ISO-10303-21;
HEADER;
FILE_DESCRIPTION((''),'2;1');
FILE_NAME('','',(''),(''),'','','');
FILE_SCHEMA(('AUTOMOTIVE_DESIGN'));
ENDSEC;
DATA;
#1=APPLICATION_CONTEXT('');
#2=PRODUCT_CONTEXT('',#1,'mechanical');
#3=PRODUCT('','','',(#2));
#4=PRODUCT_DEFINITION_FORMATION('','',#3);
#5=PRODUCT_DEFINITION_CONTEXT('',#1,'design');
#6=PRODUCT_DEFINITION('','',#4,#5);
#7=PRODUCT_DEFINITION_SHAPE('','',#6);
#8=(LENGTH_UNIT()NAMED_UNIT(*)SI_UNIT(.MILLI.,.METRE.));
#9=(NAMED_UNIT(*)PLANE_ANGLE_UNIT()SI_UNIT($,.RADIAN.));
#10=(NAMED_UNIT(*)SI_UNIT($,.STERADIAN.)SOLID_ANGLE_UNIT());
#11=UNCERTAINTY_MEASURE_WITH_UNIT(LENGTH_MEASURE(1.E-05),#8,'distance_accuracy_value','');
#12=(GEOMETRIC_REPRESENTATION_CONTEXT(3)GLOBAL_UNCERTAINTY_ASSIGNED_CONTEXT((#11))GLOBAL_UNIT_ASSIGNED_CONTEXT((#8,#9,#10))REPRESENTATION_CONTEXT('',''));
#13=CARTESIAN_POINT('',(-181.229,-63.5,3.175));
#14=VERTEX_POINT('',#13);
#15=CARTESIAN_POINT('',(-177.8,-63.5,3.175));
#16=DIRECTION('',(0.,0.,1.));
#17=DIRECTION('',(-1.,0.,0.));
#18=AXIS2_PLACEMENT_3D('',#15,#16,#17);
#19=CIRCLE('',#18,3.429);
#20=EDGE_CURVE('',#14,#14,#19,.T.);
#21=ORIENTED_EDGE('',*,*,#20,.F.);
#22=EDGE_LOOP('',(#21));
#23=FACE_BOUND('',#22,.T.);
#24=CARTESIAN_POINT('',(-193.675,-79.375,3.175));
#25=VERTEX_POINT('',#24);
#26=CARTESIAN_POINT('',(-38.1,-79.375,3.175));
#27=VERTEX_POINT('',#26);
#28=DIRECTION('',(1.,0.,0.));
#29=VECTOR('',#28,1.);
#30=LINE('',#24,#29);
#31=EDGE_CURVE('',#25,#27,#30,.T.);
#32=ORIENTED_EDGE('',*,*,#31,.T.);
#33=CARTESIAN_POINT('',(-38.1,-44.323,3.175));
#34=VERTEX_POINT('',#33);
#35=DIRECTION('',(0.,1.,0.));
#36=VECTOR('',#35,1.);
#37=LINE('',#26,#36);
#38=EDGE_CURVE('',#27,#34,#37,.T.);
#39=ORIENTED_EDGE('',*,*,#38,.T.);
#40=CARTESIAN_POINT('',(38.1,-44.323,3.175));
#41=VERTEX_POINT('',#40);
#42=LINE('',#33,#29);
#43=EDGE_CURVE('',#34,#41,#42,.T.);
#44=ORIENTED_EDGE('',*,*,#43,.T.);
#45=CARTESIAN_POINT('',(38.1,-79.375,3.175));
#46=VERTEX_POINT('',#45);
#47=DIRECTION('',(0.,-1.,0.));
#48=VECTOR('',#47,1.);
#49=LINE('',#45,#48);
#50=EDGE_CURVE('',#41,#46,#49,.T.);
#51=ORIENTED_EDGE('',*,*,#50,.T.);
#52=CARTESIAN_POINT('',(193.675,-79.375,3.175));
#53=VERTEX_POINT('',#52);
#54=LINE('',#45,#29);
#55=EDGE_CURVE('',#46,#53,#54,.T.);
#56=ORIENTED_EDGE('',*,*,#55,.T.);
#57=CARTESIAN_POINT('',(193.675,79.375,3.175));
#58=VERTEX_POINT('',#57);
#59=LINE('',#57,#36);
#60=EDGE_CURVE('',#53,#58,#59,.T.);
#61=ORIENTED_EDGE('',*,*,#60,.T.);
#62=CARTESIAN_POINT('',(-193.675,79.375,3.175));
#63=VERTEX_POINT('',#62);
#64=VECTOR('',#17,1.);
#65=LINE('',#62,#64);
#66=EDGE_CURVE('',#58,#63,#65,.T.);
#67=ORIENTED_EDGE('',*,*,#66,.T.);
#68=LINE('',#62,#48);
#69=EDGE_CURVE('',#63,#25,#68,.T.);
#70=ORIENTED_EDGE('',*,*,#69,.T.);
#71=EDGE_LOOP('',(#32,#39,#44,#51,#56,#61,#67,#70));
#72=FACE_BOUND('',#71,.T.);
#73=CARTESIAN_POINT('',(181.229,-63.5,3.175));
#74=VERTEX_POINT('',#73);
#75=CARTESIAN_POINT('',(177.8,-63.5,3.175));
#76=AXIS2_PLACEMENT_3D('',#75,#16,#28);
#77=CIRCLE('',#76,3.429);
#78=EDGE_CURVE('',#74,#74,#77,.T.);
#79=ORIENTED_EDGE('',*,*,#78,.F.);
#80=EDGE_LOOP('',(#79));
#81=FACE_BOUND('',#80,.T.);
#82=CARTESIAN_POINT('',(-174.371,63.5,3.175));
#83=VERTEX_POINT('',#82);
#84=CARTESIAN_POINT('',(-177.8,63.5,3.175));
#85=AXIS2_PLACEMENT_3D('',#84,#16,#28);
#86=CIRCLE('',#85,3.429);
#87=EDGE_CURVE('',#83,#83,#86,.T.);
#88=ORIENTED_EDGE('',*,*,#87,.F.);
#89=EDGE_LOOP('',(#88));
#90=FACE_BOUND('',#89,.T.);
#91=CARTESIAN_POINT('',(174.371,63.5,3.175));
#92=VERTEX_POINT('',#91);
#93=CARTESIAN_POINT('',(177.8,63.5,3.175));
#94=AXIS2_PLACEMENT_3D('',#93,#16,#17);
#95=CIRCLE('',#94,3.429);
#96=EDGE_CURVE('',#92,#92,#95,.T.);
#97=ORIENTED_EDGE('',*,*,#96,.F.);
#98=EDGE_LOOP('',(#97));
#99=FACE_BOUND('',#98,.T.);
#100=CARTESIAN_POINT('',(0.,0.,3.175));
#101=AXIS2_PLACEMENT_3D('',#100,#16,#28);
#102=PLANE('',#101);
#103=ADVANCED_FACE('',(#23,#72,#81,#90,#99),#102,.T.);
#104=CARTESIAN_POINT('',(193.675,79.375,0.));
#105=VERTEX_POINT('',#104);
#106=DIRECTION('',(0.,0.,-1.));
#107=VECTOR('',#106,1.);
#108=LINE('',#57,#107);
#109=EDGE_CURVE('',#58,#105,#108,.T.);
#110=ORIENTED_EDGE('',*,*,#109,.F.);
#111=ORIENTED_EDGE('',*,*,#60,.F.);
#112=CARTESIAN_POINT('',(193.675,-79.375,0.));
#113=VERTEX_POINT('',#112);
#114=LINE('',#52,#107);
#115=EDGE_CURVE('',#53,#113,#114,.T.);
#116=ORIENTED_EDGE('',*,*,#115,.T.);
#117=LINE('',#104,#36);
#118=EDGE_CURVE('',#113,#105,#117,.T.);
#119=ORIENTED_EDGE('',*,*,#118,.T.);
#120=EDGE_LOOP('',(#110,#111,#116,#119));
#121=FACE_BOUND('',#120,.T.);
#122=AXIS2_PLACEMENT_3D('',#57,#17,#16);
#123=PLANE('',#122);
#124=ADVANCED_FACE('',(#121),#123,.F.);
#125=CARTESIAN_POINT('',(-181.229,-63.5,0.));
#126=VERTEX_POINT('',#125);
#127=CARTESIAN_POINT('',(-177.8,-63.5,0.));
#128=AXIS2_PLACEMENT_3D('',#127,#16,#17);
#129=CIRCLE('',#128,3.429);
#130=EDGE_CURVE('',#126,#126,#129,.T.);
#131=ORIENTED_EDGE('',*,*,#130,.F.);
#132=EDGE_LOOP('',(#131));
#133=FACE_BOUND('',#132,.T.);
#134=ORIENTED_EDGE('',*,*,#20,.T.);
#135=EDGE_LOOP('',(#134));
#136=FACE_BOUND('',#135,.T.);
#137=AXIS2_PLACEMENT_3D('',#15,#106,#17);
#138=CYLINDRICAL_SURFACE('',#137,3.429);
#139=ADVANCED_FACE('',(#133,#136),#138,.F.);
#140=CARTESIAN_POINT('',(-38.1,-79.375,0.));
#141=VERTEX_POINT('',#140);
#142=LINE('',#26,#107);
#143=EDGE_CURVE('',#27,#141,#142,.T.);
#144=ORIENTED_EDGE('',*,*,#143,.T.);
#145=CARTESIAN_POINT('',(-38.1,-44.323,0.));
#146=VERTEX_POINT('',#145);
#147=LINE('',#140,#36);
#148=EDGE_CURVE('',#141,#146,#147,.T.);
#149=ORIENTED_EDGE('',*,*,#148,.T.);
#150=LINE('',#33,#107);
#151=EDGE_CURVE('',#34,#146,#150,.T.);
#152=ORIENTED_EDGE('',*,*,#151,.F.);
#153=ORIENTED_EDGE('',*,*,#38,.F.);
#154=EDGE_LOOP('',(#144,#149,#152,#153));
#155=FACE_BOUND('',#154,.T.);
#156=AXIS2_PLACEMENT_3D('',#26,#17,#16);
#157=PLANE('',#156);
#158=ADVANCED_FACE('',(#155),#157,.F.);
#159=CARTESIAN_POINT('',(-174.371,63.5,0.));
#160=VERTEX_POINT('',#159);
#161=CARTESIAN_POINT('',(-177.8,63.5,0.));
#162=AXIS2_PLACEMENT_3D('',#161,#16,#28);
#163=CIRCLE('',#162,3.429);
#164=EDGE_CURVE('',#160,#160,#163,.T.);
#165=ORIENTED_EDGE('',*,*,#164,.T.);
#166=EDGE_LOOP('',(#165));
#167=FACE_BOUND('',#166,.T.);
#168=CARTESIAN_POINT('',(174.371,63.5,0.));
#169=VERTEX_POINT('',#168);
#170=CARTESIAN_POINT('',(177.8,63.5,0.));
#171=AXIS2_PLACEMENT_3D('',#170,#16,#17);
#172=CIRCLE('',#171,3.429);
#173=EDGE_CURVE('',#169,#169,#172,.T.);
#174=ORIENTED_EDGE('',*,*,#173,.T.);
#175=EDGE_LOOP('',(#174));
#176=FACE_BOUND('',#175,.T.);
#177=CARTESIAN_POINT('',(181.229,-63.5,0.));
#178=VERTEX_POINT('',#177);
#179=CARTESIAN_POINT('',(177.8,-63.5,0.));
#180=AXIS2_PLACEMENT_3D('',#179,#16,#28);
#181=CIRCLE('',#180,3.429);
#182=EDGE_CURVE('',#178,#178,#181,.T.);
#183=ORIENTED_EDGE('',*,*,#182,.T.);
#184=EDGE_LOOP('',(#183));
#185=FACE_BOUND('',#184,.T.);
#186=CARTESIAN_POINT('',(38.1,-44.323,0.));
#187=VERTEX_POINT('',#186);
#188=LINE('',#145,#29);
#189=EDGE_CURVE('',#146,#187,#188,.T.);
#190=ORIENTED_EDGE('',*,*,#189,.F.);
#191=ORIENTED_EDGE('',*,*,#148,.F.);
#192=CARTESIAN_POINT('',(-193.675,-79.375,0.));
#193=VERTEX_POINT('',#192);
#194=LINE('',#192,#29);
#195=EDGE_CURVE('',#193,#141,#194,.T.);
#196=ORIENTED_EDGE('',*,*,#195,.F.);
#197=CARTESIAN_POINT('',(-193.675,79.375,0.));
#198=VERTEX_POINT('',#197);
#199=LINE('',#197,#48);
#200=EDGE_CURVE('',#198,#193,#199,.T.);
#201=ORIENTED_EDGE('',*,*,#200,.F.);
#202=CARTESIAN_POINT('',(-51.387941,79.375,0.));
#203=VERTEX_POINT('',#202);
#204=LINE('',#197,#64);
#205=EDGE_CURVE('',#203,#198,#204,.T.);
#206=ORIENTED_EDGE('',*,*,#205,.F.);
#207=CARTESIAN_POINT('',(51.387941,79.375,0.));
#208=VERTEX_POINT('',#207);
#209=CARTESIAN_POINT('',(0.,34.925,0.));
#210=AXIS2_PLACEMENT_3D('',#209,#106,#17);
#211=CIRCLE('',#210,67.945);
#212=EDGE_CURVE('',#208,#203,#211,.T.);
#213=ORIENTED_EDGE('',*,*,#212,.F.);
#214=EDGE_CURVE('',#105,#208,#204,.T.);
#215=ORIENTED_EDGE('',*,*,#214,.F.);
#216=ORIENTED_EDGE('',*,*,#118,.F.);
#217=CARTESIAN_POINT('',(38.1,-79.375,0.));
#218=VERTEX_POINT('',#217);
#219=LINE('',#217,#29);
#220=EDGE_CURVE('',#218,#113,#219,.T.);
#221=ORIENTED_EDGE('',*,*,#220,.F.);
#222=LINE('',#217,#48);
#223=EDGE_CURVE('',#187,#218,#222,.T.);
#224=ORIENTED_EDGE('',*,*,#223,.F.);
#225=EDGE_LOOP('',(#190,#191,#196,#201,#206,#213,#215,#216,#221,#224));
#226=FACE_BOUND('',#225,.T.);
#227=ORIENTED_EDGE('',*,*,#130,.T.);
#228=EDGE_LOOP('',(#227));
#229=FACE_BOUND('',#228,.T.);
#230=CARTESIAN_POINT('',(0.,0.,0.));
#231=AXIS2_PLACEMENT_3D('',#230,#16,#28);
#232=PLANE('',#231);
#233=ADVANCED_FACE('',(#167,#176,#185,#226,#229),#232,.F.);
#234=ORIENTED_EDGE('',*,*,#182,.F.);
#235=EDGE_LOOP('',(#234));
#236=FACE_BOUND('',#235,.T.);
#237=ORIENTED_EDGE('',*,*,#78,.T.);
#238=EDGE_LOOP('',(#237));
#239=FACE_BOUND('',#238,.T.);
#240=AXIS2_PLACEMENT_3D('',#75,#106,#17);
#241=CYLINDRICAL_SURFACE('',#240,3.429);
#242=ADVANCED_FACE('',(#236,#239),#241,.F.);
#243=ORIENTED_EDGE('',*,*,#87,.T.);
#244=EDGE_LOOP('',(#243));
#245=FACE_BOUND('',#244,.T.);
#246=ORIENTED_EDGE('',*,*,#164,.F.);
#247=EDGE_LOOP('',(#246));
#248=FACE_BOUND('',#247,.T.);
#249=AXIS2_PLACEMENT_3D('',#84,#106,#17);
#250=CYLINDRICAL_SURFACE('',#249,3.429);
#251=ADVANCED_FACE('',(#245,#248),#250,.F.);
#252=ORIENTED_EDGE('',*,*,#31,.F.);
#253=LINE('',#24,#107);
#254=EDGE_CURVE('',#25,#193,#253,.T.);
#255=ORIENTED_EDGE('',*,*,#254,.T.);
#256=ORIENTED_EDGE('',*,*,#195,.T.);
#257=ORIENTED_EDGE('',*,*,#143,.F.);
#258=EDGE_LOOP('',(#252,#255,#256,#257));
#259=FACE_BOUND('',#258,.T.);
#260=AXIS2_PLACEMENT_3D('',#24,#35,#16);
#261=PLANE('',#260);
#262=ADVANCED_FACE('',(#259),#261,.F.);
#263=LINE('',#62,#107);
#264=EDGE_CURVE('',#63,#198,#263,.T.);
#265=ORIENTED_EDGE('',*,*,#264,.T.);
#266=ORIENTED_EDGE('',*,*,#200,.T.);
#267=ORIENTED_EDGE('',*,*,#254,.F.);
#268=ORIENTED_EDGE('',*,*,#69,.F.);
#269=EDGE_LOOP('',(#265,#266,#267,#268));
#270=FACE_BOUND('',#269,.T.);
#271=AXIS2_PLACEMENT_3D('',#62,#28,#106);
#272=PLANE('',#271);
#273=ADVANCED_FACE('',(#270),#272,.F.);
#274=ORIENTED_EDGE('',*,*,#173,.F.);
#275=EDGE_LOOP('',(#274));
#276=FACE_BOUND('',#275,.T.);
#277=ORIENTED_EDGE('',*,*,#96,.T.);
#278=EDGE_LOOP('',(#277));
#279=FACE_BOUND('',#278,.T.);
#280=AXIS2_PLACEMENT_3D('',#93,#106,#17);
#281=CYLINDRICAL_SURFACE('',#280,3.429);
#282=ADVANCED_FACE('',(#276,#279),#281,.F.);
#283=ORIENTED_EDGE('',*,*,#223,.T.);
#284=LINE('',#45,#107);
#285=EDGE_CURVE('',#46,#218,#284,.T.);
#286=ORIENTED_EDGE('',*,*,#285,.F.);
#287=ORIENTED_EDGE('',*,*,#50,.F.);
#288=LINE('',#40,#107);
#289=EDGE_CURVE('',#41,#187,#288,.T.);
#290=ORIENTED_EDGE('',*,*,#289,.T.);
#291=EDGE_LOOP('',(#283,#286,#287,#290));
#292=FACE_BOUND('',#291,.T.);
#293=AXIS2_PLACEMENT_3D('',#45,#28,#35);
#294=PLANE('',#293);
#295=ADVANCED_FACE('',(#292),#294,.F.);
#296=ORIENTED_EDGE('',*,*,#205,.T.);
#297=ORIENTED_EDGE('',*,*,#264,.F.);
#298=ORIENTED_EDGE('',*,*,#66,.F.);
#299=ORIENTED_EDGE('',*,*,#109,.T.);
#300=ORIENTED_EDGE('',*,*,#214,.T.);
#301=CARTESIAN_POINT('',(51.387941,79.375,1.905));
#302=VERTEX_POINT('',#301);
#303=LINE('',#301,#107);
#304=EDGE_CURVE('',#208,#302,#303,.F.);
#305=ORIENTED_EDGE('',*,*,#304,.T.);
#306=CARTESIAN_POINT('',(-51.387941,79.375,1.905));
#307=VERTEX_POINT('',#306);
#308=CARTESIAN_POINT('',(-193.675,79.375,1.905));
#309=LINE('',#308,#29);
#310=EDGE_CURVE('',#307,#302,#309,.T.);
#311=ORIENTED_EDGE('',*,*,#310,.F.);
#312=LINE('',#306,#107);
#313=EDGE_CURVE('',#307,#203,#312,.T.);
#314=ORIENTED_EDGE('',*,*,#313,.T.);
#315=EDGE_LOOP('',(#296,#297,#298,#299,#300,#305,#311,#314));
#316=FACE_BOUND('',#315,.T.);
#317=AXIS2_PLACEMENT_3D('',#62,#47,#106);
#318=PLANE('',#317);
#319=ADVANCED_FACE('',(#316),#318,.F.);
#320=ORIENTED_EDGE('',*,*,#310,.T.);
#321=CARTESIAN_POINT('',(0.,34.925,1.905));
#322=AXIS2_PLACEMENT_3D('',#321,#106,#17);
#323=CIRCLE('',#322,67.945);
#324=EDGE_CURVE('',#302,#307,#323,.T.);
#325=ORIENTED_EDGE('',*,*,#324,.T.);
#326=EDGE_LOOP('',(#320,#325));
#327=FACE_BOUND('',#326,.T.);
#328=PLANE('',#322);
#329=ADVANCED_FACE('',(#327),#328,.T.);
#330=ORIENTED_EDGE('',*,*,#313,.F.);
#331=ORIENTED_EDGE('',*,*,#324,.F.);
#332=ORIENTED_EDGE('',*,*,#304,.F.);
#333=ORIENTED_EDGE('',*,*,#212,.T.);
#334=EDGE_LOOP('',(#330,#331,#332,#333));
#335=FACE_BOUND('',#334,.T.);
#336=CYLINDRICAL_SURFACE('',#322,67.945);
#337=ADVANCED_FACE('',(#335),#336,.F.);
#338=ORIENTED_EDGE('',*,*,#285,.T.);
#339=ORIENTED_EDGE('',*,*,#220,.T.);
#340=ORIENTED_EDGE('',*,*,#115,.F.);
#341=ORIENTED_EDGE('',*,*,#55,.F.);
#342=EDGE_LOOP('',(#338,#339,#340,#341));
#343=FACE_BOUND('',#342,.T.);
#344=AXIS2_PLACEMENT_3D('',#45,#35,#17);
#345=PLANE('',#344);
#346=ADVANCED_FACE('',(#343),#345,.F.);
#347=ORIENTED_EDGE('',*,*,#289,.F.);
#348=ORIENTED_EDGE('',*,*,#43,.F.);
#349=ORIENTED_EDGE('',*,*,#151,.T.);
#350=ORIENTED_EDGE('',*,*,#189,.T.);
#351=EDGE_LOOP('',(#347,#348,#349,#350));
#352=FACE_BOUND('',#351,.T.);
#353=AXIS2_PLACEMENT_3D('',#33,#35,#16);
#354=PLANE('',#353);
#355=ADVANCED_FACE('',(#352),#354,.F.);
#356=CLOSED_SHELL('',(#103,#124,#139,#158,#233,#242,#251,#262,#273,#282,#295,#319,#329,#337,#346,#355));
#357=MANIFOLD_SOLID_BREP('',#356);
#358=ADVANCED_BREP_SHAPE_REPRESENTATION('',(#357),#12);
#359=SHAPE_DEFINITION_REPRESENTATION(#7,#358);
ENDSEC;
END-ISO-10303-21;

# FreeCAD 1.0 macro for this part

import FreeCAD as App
import Part
import Sketcher
Q = App.Units.Quantity

doc = App.newDocument("Part")
params = doc.addObject("Spreadsheet::Sheet", "Params")
for row, (alias, value) in enumerate([
    ("sketch1_diameter", "0.27 in"),
    ("sketch1_width", "3 in"),
    ("sketch1_width2", "15.25 in"),
    ("sketch1_height", "6.25 in"),
    ("sketch1_height2", "1.38 in"),
    ("pad1_length", "0.125 in"),
    ("sketch2_diameter", "5.35 in"),
    ("pocket1_length", "0.075 in"),
], start=1):
    params.set(f"A{row}", alias)
    params.set(f"B{row}", "=" + value)
    params.setAlias(f"B{row}", alias)

body = doc.addObject("PartDesign::Body", "Body")

sketch1 = body.newObject("Sketcher::SketchObject", "Sketch")
sketch1.AttachmentSupport = (doc.getObject("XY_Plane"), [""])
sketch1.MapMode = "FlatFace"
sketch1.addGeometry([
    Part.LineSegment(App.Vector(38.1, -79.4, 0), App.Vector(193.7, -79.4, 0)),
    Part.LineSegment(App.Vector(193.7, -79.4, 0), App.Vector(193.7, 79.4, 0)),
    Part.LineSegment(App.Vector(193.7, 79.4, 0), App.Vector(-193.7, 79.4, 0)),
    Part.LineSegment(App.Vector(-193.7, 79.4, 0), App.Vector(-193.7, -79.4, 0)),
    Part.LineSegment(App.Vector(-193.7, -79.4, 0), App.Vector(-38.1, -79.4, 0)),
    Part.LineSegment(App.Vector(-38.1, -79.4, 0), App.Vector(-38.1, -44.3, 0)),
    Part.LineSegment(App.Vector(-38.1, -44.3, 0), App.Vector(38.1, -44.3, 0)),
    Part.LineSegment(App.Vector(38.1, -44.3, 0), App.Vector(38.1, -79.4, 0)),
    Part.Circle(App.Vector(-177.8, -63.5, 0), App.Vector(0, 0, 1), 3.4),
    Part.Circle(App.Vector(177.8, -63.5, 0), App.Vector(0, 0, 1), 3.4),
    Part.Circle(App.Vector(-177.8, 63.5, 0), App.Vector(0, 0, 1), 3.4),
    Part.Circle(App.Vector(177.8, 63.5, 0), App.Vector(0, 0, 1), 3.4),
], False)
sketch1.addConstraint([
    Sketcher.Constraint("Coincident", 0, 2, 1, 1),
    Sketcher.Constraint("Coincident", 1, 2, 2, 1),
    Sketcher.Constraint("Coincident", 2, 2, 3, 1),
    Sketcher.Constraint("Coincident", 3, 2, 4, 1),
    Sketcher.Constraint("Coincident", 4, 2, 5, 1),
    Sketcher.Constraint("Coincident", 5, 2, 6, 1),
    Sketcher.Constraint("Coincident", 6, 2, 7, 1),
    Sketcher.Constraint("Coincident", 7, 2, 0, 1),
    Sketcher.Constraint("Horizontal", 0),
    Sketcher.Constraint("Vertical", 1),
    Sketcher.Constraint("Horizontal", 2),
    Sketcher.Constraint("Vertical", 3),
    Sketcher.Constraint("Horizontal", 4),
    Sketcher.Constraint("Vertical", 5),
    Sketcher.Constraint("Horizontal", 6),
    Sketcher.Constraint("Vertical", 7),
    Sketcher.Constraint("Equal", 8, 9),
    Sketcher.Constraint("Equal", 9, 10),
    Sketcher.Constraint("Equal", 10, 11),
    Sketcher.Constraint("Symmetric", 9, 3, 10, 3, -1, 1),
    Sketcher.Constraint("Symmetric", 8, 3, 11, 3, -1, 1),
    Sketcher.Constraint("Symmetric", 0, 2, 2, 2, -1, 1),
    Sketcher.Constraint("Symmetric", 8, 3, 9, 3, -2),
    Sketcher.Constraint("Symmetric", 4, 2, 7, 2, -2),
    Sketcher.Constraint("Diameter", 8, Q("0.27 in")),
    Sketcher.Constraint("DistanceX", 6, 1, 6, 2, Q("3 in")),
    Sketcher.Constraint("DistanceX", 8, 3, -1, 1, Q("7 in")),
    Sketcher.Constraint("DistanceY", 8, 3, 10, 3, Q("5 in")),
    Sketcher.Constraint("DistanceX", 2, 2, 2, 1, Q("15.25 in")),
    Sketcher.Constraint("DistanceY", 1, 1, 1, 2, Q("6.25 in")),
    Sketcher.Constraint("DistanceY", 5, 1, 5, 2, Q("1.38 in")),
])
sketch1.setExpression("Constraints[24]", "Params.sketch1_diameter")
sketch1.setExpression("Constraints[25]", "Params.sketch1_width")
sketch1.setExpression("Constraints[28]", "Params.sketch1_width2")
sketch1.setExpression("Constraints[29]", "Params.sketch1_height")
sketch1.setExpression("Constraints[30]", "Params.sketch1_height2")
pad1 = body.newObject("PartDesign::Pad", "Pad")
pad1.Profile = sketch1
pad1.setExpression("Length", "Params.pad1_length")

sketch2 = body.newObject("Sketcher::SketchObject", "Sketch001")
sketch2.AttachmentSupport = (doc.getObject("XY_Plane"), [""])
sketch2.MapMode = "FlatFace"
sketch2.addGeometry(Part.Circle(App.Vector(0, 35, 0), App.Vector(0, 0, 1), 68), False)
sketch2.addConstraint([
    Sketcher.Constraint("PointOnObject", 0, 3, -2),
    Sketcher.Constraint("Diameter", 0, Q("5.35 in")),
    Sketcher.Constraint("DistanceY", -1, 1, 0, 3, Q("1.375 in")),
])
sketch2.setExpression("Constraints[1]", "Params.sketch2_diameter")
pocket1 = body.newObject("PartDesign::Pocket", "Pocket")
pocket1.Profile = sketch2
pocket1.setExpression("Length", "Params.pocket1_length")
pocket1.Reversed = True

doc.recompute()
